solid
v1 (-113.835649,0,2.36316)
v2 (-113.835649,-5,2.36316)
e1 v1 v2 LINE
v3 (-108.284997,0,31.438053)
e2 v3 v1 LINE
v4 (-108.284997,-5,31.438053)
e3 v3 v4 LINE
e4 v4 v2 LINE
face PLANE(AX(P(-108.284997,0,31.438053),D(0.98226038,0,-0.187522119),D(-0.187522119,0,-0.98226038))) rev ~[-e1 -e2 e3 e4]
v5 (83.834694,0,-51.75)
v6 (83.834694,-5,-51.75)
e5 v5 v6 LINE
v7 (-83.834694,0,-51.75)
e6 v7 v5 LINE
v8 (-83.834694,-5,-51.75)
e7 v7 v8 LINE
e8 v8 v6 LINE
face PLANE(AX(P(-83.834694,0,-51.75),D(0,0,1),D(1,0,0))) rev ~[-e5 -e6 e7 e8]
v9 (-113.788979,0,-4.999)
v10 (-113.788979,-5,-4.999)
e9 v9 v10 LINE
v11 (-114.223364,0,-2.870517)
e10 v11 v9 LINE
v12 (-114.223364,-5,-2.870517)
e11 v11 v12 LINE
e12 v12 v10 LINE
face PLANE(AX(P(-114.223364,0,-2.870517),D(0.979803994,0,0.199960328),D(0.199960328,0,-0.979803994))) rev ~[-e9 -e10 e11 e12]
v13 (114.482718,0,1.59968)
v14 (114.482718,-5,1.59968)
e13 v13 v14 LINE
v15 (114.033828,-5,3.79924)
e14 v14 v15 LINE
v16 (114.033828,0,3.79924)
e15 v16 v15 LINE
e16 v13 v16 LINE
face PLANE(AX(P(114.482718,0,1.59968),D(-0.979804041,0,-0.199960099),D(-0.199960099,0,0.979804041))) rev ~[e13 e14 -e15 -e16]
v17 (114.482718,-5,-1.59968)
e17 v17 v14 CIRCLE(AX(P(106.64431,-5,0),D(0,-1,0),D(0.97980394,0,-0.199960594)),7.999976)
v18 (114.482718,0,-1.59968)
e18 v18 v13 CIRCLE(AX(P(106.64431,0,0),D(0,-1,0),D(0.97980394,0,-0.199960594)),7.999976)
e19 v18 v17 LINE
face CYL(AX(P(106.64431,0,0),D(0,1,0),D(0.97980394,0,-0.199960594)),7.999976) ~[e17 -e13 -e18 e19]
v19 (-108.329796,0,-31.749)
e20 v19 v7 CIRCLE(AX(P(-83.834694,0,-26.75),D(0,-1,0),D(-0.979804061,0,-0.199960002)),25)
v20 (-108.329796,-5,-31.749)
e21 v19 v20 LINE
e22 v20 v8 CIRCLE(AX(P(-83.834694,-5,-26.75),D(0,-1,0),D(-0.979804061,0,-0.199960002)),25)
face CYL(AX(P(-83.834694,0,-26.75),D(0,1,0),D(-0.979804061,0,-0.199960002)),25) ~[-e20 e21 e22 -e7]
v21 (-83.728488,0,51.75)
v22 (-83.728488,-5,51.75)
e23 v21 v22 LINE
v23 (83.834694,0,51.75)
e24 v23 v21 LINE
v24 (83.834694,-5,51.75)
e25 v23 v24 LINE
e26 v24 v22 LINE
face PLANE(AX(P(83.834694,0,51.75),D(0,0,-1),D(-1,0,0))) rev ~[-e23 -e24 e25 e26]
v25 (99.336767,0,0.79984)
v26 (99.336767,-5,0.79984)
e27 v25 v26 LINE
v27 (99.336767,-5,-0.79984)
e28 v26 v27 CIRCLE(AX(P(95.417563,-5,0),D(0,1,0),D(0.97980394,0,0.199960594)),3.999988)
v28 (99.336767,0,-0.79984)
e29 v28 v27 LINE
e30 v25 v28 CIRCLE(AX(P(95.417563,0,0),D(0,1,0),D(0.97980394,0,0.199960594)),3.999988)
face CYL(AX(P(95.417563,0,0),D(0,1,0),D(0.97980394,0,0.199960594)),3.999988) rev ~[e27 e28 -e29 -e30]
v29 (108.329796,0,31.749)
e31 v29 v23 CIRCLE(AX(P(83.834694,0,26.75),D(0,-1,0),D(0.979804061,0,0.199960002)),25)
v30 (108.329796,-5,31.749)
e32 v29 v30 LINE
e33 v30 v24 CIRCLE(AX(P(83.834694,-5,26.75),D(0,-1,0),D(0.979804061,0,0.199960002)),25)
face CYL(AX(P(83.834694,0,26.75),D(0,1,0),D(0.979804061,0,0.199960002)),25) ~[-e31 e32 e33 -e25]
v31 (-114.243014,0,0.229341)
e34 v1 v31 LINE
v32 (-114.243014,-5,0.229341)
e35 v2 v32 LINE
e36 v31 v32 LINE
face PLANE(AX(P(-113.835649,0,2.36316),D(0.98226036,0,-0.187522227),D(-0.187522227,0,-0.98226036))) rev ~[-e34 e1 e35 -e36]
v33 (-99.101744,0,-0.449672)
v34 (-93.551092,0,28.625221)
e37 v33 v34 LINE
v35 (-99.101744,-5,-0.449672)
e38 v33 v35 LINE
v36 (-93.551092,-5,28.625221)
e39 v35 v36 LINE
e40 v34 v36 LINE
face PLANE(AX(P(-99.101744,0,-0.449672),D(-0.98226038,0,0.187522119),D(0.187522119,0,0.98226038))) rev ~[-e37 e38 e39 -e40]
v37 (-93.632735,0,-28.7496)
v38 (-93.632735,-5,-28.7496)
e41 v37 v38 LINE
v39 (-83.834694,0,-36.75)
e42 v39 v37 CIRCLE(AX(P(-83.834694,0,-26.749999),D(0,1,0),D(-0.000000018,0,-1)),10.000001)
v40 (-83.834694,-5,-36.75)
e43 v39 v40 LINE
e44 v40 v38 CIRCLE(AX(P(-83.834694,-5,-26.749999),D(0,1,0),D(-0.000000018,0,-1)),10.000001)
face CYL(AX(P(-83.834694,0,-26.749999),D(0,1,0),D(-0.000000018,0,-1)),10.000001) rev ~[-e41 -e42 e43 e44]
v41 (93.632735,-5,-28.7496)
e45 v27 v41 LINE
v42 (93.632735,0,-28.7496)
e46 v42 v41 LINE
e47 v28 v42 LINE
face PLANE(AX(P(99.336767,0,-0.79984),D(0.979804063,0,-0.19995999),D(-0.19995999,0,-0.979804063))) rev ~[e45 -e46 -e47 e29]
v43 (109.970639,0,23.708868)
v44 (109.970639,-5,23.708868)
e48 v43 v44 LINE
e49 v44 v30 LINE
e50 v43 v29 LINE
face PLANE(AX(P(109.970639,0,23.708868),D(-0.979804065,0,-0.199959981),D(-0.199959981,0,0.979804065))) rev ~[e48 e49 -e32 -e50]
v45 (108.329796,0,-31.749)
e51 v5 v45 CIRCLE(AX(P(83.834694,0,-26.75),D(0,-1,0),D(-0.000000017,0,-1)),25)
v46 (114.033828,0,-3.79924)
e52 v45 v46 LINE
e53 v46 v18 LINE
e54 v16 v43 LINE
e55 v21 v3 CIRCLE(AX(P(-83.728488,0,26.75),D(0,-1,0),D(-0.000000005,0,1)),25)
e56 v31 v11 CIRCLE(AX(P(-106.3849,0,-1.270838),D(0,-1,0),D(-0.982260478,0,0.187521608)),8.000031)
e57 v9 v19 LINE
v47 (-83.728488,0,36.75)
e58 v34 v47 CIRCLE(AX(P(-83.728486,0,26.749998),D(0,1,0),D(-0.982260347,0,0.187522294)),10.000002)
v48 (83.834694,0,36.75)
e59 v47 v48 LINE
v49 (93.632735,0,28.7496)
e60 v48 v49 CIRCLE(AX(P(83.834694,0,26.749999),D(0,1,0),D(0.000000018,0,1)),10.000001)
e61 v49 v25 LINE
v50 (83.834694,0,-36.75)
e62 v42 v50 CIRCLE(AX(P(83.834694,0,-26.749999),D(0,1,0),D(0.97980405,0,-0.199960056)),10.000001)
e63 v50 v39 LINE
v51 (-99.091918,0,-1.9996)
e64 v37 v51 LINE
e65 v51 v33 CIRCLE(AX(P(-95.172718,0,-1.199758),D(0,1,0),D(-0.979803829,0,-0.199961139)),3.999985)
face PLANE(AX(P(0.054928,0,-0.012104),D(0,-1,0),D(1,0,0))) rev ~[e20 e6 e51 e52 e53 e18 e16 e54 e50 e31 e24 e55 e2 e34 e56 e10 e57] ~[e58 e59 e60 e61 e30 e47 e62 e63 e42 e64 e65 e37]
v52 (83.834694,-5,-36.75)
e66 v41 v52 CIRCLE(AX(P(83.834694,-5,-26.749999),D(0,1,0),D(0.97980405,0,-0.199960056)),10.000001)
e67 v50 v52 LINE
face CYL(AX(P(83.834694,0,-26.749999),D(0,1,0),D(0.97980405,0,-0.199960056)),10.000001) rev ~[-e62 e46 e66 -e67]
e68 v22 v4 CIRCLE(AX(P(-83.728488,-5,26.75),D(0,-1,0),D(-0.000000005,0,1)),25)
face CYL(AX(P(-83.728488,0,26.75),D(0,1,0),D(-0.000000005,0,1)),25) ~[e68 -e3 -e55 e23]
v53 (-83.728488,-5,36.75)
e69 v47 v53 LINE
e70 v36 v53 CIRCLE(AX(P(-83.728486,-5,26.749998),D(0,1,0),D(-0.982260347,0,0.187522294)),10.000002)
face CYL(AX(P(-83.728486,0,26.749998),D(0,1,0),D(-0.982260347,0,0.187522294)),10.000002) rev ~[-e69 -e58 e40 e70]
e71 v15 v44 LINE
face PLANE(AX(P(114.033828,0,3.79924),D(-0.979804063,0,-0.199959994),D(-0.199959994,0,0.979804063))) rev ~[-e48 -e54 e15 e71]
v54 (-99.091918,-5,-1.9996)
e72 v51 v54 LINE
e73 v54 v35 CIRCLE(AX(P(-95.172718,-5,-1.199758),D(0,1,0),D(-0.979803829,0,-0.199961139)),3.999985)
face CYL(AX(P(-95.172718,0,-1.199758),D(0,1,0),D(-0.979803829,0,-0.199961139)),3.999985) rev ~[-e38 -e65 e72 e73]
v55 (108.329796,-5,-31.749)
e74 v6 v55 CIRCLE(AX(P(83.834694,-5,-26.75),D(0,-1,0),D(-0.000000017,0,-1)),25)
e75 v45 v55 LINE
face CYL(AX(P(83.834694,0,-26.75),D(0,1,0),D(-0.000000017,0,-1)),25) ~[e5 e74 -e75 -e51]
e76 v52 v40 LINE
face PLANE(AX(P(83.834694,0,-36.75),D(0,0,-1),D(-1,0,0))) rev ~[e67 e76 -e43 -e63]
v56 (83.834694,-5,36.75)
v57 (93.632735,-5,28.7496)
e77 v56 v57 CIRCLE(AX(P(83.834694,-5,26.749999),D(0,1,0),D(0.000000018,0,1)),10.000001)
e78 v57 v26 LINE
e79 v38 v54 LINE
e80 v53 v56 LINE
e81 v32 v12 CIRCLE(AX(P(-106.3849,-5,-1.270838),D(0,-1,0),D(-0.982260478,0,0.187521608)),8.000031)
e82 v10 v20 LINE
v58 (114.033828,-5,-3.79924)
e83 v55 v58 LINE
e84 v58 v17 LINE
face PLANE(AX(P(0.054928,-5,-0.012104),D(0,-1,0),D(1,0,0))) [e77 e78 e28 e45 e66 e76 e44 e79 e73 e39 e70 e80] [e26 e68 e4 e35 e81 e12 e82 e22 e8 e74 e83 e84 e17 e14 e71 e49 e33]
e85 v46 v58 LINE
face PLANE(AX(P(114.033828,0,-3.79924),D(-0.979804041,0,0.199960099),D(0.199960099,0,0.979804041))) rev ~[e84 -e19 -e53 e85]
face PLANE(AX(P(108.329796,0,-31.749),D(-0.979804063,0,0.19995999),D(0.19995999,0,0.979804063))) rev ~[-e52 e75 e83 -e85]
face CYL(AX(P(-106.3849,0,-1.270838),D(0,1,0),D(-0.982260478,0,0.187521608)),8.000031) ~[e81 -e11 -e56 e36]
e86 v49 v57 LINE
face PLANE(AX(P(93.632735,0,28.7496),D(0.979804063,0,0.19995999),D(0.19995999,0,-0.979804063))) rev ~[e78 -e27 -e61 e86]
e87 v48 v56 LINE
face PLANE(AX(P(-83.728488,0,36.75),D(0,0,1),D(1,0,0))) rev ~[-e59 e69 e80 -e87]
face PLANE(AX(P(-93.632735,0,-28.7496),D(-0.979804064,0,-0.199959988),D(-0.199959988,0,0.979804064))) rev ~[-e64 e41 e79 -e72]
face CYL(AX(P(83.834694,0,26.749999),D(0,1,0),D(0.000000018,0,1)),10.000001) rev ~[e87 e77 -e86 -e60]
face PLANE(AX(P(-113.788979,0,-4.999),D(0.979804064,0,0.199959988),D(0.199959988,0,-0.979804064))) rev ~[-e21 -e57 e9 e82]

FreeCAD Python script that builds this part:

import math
import FreeCAD as App
import Part
import Sketcher

V = App.Vector

doc = App.newDocument("Part")
body = doc.addObject("PartDesign::Body", "Body")

# Sketch on XZ plane
sketch1 = body.newObject("Sketcher::SketchObject", "Sketch")
sketch1.AttachmentSupport = (doc.getObject("XZ_Plane"), [""])
sketch1.MapMode = "FlatFace"
sketch1.addGeometry([
    Part.ArcOfCircle(Part.Circle(V(83.8, 26.7, 0), V(0, 0, 1), 25), math.radians(12), math.radians(90)),  # 0
    Part.LineSegment(V(83.8, 51.8, 0), V(-83.7, 51.8, 0)),  # 1
    Part.ArcOfCircle(Part.Circle(V(-83.7, 26.8, 0), V(0, 0, 1), 25), math.radians(90), math.radians(169)),  # 2
    Part.LineSegment(V(-108.3, 31.4, 0), V(-113.8, 2.4, 0)),  # 3
    Part.LineSegment(V(-113.8, 2.4, 0), V(-114.2, 0.2, 0)),  # 4
    Part.ArcOfCircle(Part.Circle(V(-106.4, -1.3, 0), V(0, 0, 1), 8), math.radians(169), math.radians(192)),  # 5
    Part.LineSegment(V(-114.2, -2.9, 0), V(-113.8, -5, 0)),  # 6
    Part.LineSegment(V(-113.8, -5, 0), V(-108.3, -31.7, 0)),  # 7
    Part.ArcOfCircle(Part.Circle(V(-83.8, -26.7, 0), V(0, 0, 1), 25), math.radians(-168), math.radians(-90)),  # 8
    Part.LineSegment(V(-83.8, -51.8, 0), V(83.8, -51.8, 0)),  # 9
    Part.ArcOfCircle(Part.Circle(V(83.8, -26.7, 0), V(0, 0, 1), 25), math.radians(-90), math.radians(-12)),  # 10
    Part.LineSegment(V(108.3, -31.7, 0), V(114, -3.8, 0)),  # 11
    Part.LineSegment(V(114, -3.8, 0), V(114.5, -1.6, 0)),  # 12
    Part.ArcOfCircle(Part.Circle(V(106.6, 0, 0), V(0, 0, 1), 8), math.radians(-12), math.radians(12)),  # 13
    Part.LineSegment(V(114.5, 1.6, 0), V(114, 3.8, 0)),  # 14
    Part.LineSegment(V(114, 3.8, 0), V(110, 23.7, 0)),  # 15
    Part.LineSegment(V(110, 23.7, 0), V(108.3, 31.7, 0)),  # 16
    Part.ArcOfCircle(Part.Circle(V(-83.7, 26.7, 0), V(0, 0, 1), 10), math.radians(90), math.radians(169)),  # 17
    Part.LineSegment(V(-83.7, 36.8, 0), V(83.8, 36.8, 0)),  # 18
    Part.ArcOfCircle(Part.Circle(V(83.8, 26.7, 0), V(0, 0, 1), 10), math.radians(12), math.radians(90)),  # 19
    Part.LineSegment(V(93.6, 28.7, 0), V(99.3, 0.8, 0)),  # 20
    Part.ArcOfCircle(Part.Circle(V(95.4, 0, 0), V(0, 0, 1), 4), math.radians(-12), math.radians(12)),  # 21
    Part.LineSegment(V(99.3, -0.8, 0), V(93.6, -28.7, 0)),  # 22
    Part.ArcOfCircle(Part.Circle(V(83.8, -26.7, 0), V(0, 0, 1), 10), math.radians(-90), math.radians(-12)),  # 23
    Part.LineSegment(V(83.8, -36.8, 0), V(-83.8, -36.8, 0)),  # 24
    Part.ArcOfCircle(Part.Circle(V(-83.8, -26.7, 0), V(0, 0, 1), 10), math.radians(-168), math.radians(-90)),  # 25
    Part.LineSegment(V(-93.6, -28.7, 0), V(-99.1, -2, 0)),  # 26
    Part.ArcOfCircle(Part.Circle(V(-95.2, -1.2, 0), V(0, 0, 1), 4), math.radians(169), math.radians(192)),  # 27
    Part.LineSegment(V(-99.1, -0.4, 0), V(-93.6, 28.6, 0)),  # 28
], False)
sketch1.addConstraint([
    Sketcher.Constraint("Tangent", 0, 2, 1, 1),
    Sketcher.Constraint("Tangent", 1, 2, 2, 1),
    Sketcher.Constraint("Tangent", 2, 2, 3, 1),
    Sketcher.Constraint("Coincident", 3, 2, 4, 1),
    Sketcher.Constraint("Tangent", 4, 2, 5, 1),
    Sketcher.Constraint("Tangent", 5, 2, 6, 1),
    Sketcher.Constraint("Coincident", 6, 2, 7, 1),
    Sketcher.Constraint("Tangent", 7, 2, 8, 1),
    Sketcher.Constraint("Tangent", 8, 2, 9, 1),
    Sketcher.Constraint("Tangent", 9, 2, 10, 1),
    Sketcher.Constraint("Tangent", 10, 2, 11, 1),
    Sketcher.Constraint("Coincident", 11, 2, 12, 1),
    Sketcher.Constraint("Tangent", 12, 2, 13, 1),
    Sketcher.Constraint("Tangent", 13, 2, 14, 1),
    Sketcher.Constraint("Coincident", 14, 2, 15, 1),
    Sketcher.Constraint("Coincident", 15, 2, 16, 1),
    Sketcher.Constraint("Tangent", 16, 2, 0, 1),
    Sketcher.Constraint("Tangent", 17, 1, 18, 1),
    Sketcher.Constraint("Tangent", 18, 2, 19, 2),
    Sketcher.Constraint("Tangent", 19, 1, 20, 1),
    Sketcher.Constraint("Tangent", 20, 2, 21, 2),
    Sketcher.Constraint("Tangent", 21, 1, 22, 1),
    Sketcher.Constraint("Tangent", 22, 2, 23, 2),
    Sketcher.Constraint("Tangent", 23, 1, 24, 1),
    Sketcher.Constraint("Tangent", 24, 2, 25, 2),
    Sketcher.Constraint("Tangent", 25, 1, 26, 1),
    Sketcher.Constraint("Tangent", 26, 2, 27, 2),
    Sketcher.Constraint("Tangent", 27, 1, 28, 1),
    Sketcher.Constraint("Tangent", 28, 2, 17, 2),
    Sketcher.Constraint("Horizontal", 1),
    Sketcher.Constraint("Horizontal", 9),
    Sketcher.Constraint("Horizontal", 18),
    Sketcher.Constraint("Horizontal", 24),
    Sketcher.Constraint("Coincident", 17, 3, 2, 3),
    Sketcher.Constraint("Coincident", 19, 3, 0, 3),
    Sketcher.Constraint("Coincident", 23, 3, 10, 3),
    Sketcher.Constraint("Coincident", 25, 3, 8, 3),
    Sketcher.Constraint("Equal", 0, 2),
    Sketcher.Constraint("Equal", 2, 8),
    Sketcher.Constraint("Equal", 8, 10),
    Sketcher.Constraint("Equal", 19, 23),
    Sketcher.Constraint("Symmetric", 0, 3, 8, 3, -1, 1),
    Sketcher.Constraint("Symmetric", 7, 2, 10, 2, -2),
    Sketcher.Constraint("Symmetric", 12, 2, 13, 2, -1),
    Sketcher.Constraint("PointOnObject", 21, 3, -1),
    Sketcher.Constraint("Parallel", 3, 4),
    Sketcher.Constraint("Parallel", 6, 7),
    Sketcher.Constraint("Parallel", 11, 12),
    Sketcher.Constraint("Parallel", 14, 15),
    Sketcher.Constraint("Parallel", 16, 20),
    Sketcher.Constraint("Parallel", 20, 26),
    Sketcher.Constraint("Parallel", 4, 28),
    Sketcher.Constraint("Vertical", 11, 2, 14, 2),
    Sketcher.Constraint("Equal", 4, 6),
    Sketcher.Constraint("Equal", 11, 20),
    Sketcher.Constraint("Equal", 7, 26),
    Sketcher.Constraint("Radius", 0, 25.0),
    Sketcher.Constraint("Radius", 19, 10.000001),
    Sketcher.Constraint("DistanceY", 8, 3, 2, 3, 53.5),
    Sketcher.Constraint("Radius", 5, 8.000031),
    Sketcher.Constraint("Radius", 21, 3.999988),
    Sketcher.Constraint("DistanceY", 7, 2, 6, 2, 26.75),
    Sketcher.Constraint("DistanceY", 6, 2, -1, 1, 4.999),
    Sketcher.Constraint("Radius", 13, 7.999976),
    Sketcher.Constraint("Radius", 27, 3.999985),
    Sketcher.Constraint("DistanceX", 1, 2, 1, 1, 167.563182),
    Sketcher.Constraint("DistanceX", 9, 1, 9, 2, 167.669388),
    Sketcher.Constraint("Distance", 15, 20.32001),
])
pad1 = body.newObject("PartDesign::Pad", "Pad")
pad1.Profile = sketch1
pad1.Length = 5

doc.recompute()
